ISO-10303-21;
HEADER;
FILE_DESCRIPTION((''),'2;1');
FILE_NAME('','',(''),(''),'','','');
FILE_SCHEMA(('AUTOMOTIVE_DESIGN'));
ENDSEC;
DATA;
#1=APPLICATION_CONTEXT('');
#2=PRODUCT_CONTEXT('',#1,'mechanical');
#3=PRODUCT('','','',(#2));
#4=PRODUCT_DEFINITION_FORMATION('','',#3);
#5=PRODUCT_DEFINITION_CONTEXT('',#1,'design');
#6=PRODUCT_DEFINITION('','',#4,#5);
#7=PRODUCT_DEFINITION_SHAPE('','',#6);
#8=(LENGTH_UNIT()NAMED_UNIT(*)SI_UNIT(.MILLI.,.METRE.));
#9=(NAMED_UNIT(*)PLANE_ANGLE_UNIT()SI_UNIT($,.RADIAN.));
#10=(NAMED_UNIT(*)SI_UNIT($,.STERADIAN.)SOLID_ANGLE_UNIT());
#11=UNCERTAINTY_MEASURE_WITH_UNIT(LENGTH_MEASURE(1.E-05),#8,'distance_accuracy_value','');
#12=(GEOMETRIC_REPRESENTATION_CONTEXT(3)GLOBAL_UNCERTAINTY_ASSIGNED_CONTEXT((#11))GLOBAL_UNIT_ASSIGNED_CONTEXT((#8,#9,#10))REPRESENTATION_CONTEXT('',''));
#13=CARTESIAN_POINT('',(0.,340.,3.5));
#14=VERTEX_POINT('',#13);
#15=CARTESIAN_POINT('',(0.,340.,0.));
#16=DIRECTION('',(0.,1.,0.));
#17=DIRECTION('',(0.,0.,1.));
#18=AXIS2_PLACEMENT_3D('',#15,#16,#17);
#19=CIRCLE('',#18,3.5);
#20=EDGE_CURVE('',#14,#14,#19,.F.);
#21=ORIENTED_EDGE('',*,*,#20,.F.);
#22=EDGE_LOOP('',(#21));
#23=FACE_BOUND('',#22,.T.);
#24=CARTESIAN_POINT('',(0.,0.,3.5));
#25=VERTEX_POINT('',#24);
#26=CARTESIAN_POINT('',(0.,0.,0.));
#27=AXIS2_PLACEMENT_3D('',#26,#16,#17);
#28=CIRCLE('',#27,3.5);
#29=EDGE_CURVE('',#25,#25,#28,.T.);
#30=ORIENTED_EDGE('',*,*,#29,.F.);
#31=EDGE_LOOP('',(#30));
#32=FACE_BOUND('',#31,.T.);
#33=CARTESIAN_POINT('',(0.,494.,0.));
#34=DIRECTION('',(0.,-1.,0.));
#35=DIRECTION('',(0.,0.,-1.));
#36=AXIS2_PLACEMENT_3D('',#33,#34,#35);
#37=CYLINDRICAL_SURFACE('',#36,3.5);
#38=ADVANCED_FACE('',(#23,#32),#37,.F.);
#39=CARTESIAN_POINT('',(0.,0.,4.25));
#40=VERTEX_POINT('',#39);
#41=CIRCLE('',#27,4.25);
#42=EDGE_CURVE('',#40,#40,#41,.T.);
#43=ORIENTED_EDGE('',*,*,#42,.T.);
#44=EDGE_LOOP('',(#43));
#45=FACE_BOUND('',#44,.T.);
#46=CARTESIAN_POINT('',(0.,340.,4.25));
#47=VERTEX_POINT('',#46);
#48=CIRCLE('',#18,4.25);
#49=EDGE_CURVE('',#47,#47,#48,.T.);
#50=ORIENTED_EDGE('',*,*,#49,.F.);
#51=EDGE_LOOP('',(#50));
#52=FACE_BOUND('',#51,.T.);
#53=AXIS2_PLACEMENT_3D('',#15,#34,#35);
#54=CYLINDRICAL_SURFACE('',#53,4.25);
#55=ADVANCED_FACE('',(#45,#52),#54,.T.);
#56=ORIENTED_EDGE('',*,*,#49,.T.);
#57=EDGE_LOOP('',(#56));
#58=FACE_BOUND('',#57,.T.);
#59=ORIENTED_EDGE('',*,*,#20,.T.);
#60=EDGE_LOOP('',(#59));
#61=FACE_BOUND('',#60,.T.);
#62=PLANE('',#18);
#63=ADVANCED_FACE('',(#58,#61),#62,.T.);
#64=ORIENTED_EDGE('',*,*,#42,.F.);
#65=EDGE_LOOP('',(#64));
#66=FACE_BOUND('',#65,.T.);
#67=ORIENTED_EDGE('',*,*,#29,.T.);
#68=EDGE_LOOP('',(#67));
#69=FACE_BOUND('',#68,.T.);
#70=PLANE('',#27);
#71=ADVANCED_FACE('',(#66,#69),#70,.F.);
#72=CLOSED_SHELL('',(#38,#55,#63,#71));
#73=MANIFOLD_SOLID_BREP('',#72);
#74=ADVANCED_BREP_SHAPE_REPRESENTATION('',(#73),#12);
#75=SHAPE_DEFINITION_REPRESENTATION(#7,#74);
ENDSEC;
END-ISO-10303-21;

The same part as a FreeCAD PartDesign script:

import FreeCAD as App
import Part
import Sketcher
Q = App.Units.Quantity

doc = App.newDocument("Part")
params = doc.addObject("Spreadsheet::Sheet", "Params")
for row, (alias, value) in enumerate([
    ("sketch1_diameter", "8.5 mm"),
    ("pad1_length", "340 mm"),
    ("sketch2_diameter", "7 mm"),
    ("pocket1_length", "494 mm"),
], start=1):
    params.set(f"A{row}", alias)
    params.set(f"B{row}", "=" + value)
    params.setAlias(f"B{row}", alias)

body = doc.addObject("PartDesign::Body", "Body")

# Sketch on XZ plane
sketch1 = body.newObject("Sketcher::SketchObject", "Sketch")
sketch1.AttachmentSupport = (doc.getObject("XZ_Plane"), [""])
sketch1.MapMode = "FlatFace"
sketch1.addGeometry(Part.Circle(App.Vector(0, 0, 0), App.Vector(0, 0, 1), 4.25), False)
sketch1.addConstraint([
    Sketcher.Constraint("Coincident", 0, 3, -1, 1),
    Sketcher.Constraint("Diameter", 0, Q("8.5 mm")),
])
sketch1.setExpression("Constraints[1]", "Params.sketch1_diameter")
pad1 = body.newObject("PartDesign::Pad", "Pad")
pad1.Profile = sketch1
pad1.setExpression("Length", "Params.pad1_length")
pad1.Reversed = True

# Sketch on XZ plane
sketch2 = body.newObject("Sketcher::SketchObject", "Sketch001")
sketch2.AttachmentSupport = (doc.getObject("XZ_Plane"), [""])
sketch2.MapMode = "FlatFace"
sketch2.addGeometry(Part.Circle(App.Vector(0, 0, 0), App.Vector(0, 0, 1), 3.5), False)
sketch2.addConstraint([
    Sketcher.Constraint("Coincident", 0, 3, -1, 1),
    Sketcher.Constraint("Diameter", 0, Q("7 mm")),
])
sketch2.setExpression("Constraints[1]", "Params.sketch2_diameter")
pocket1 = body.newObject("PartDesign::Pocket", "Pocket")
pocket1.Profile = sketch2
pocket1.setExpression("Length", "Params.pocket1_length")

doc.recompute()
